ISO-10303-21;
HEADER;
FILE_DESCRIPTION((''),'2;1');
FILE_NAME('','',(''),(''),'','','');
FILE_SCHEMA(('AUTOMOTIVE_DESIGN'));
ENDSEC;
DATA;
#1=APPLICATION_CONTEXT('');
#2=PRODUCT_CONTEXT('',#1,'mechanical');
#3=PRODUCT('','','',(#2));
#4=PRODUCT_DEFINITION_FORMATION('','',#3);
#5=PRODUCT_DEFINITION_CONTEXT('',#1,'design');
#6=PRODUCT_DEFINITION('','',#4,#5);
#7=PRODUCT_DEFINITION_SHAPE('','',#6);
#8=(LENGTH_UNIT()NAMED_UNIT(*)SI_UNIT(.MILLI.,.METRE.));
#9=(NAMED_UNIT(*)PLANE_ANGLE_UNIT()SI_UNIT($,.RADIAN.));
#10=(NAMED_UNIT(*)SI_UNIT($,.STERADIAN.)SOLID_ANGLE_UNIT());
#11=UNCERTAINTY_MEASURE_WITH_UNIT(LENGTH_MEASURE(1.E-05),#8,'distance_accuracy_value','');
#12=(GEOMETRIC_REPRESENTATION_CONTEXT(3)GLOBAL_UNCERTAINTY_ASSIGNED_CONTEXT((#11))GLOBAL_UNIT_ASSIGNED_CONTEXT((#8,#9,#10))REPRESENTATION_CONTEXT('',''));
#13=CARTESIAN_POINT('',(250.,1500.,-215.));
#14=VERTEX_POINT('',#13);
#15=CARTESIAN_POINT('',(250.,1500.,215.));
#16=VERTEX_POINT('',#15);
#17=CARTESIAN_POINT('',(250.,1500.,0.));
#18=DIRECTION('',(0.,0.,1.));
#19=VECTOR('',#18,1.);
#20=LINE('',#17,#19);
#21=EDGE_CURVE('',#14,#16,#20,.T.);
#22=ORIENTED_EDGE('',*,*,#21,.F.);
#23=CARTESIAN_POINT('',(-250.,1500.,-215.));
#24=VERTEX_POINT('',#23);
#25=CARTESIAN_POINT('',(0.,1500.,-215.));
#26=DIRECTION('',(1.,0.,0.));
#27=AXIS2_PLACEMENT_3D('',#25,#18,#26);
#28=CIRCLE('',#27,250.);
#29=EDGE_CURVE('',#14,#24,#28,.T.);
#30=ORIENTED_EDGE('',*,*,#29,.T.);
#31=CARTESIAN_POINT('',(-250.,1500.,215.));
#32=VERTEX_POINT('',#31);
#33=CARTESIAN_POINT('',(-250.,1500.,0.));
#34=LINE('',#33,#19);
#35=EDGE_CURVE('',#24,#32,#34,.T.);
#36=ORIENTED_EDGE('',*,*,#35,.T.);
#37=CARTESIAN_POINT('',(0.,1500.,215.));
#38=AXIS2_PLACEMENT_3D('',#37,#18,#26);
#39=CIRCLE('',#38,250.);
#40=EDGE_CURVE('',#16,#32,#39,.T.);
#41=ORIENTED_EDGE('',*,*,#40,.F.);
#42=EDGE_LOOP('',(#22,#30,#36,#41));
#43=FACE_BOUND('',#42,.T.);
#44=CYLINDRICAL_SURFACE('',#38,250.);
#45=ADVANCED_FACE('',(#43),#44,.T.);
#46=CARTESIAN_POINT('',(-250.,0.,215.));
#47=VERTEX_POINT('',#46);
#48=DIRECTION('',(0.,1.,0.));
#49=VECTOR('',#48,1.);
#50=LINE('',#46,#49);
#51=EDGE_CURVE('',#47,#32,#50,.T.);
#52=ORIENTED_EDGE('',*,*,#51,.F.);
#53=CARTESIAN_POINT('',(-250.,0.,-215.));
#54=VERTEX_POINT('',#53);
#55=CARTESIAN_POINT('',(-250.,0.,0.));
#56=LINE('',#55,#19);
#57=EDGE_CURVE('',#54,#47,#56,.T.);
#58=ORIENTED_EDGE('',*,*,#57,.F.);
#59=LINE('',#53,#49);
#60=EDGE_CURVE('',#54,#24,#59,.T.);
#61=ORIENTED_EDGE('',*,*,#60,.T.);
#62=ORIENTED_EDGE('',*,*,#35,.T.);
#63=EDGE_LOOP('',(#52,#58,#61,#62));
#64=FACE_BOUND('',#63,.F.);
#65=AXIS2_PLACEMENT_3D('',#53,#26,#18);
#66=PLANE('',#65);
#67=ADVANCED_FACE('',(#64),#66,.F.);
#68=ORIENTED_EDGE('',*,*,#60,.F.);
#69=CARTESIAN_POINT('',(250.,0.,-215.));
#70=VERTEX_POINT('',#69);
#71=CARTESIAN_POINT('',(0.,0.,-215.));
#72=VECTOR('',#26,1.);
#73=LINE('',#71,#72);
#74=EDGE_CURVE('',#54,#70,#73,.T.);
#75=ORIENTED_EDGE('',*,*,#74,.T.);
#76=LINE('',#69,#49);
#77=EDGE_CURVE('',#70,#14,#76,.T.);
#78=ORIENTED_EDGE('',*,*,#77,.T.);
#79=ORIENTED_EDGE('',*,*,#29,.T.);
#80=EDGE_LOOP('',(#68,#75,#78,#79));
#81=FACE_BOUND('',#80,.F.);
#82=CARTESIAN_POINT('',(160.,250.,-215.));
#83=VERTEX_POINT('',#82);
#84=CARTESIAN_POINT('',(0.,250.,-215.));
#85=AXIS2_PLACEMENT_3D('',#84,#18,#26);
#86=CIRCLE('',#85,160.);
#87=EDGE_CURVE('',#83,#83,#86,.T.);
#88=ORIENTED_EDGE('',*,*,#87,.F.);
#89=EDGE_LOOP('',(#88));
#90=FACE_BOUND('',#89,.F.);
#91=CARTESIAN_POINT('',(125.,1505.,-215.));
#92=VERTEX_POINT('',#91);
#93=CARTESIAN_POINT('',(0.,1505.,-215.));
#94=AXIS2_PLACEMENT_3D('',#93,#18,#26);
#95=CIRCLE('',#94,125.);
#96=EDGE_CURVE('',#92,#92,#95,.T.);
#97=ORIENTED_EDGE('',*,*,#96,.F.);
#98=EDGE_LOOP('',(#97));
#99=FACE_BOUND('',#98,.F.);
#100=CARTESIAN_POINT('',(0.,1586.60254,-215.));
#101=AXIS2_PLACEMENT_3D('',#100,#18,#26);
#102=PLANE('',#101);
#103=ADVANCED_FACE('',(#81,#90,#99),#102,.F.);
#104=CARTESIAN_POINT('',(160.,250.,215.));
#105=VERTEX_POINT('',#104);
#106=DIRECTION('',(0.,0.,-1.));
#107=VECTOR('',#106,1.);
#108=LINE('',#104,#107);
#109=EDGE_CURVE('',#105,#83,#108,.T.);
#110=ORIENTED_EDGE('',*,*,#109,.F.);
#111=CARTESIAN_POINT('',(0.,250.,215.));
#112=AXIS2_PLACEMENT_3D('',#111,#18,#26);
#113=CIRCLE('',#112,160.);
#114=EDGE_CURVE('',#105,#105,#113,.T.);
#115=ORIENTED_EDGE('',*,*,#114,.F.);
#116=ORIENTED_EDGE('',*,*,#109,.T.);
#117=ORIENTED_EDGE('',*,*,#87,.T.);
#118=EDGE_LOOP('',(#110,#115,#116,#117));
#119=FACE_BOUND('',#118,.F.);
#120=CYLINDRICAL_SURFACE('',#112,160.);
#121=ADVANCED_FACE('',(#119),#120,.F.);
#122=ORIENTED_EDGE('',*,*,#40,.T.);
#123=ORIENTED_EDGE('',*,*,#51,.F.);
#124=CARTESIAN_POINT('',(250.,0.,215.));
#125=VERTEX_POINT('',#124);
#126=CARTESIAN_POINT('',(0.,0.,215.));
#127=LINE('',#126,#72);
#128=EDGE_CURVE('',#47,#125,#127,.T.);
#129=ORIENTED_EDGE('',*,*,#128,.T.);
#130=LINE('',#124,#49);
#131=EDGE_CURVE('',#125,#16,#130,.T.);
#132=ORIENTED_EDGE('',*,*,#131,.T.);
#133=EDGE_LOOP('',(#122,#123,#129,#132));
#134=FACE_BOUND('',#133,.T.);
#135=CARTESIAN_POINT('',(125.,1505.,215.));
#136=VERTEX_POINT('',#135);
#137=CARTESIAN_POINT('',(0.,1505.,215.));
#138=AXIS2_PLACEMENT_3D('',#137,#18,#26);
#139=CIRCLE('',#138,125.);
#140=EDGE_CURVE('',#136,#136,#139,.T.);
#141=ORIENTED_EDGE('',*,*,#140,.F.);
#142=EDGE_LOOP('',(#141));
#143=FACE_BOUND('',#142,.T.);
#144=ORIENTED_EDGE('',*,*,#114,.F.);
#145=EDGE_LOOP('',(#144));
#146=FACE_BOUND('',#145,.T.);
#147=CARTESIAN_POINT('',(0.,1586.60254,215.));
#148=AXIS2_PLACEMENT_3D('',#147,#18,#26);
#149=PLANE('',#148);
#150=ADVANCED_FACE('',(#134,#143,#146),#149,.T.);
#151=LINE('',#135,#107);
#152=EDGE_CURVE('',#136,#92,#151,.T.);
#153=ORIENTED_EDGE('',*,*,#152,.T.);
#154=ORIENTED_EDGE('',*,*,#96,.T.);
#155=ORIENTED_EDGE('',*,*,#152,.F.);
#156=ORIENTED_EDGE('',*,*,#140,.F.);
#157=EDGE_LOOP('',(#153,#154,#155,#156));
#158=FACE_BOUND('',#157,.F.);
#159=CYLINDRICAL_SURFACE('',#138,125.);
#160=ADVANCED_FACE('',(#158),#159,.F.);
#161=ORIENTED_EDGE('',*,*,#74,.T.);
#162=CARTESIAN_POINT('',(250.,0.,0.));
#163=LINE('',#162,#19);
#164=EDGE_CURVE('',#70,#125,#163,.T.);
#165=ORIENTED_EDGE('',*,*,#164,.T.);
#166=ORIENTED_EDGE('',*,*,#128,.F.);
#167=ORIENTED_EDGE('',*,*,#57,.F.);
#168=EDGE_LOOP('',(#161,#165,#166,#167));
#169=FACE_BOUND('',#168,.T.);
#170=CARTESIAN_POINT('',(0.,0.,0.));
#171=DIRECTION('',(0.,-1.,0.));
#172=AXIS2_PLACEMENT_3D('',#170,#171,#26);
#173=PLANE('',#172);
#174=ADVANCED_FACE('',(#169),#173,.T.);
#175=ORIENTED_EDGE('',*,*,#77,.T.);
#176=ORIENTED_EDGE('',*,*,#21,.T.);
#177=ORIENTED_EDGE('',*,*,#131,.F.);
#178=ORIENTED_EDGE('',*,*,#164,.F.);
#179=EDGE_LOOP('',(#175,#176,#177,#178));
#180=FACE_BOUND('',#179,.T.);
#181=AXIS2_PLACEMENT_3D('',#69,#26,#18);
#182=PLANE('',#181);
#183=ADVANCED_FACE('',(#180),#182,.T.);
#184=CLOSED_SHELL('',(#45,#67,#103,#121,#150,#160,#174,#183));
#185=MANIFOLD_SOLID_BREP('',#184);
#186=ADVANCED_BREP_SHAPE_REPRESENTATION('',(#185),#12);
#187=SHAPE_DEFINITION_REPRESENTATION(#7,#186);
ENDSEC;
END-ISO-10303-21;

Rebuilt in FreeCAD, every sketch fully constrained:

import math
import FreeCAD as App
import Part
import Sketcher

V = App.Vector


def add_polygon(sketch, points):
    """Adds a closed chain of lines whose ends are joined by coincident constraints."""
    first, n = sketch.GeometryCount, len(points)
    for a, b in zip(points, points[1:] + points[:1]):
        sketch.addGeometry(Part.LineSegment(App.Vector(*a, 0), App.Vector(*b, 0)), False)
    for i in range(n):
        sketch.addConstraint(Sketcher.Constraint("Coincident", first + i, 2, first + (i + 1) % n, 1))

doc = App.newDocument("Part")
body = doc.addObject("PartDesign::Body", "Body")

# Sketch on XZ plane
sketch1 = body.newObject("Sketcher::SketchObject", "Sketch")
sketch1.AttachmentSupport = (doc.getObject("XZ_Plane"), [""])
sketch1.MapMode = "FlatFace"
add_polygon(sketch1, [(-250, 215), (-250, -215), (250, -215), (250, 215)])  # lines 0-3
sketch1.addConstraint(Sketcher.Constraint("Vertical", 0))
sketch1.addConstraint(Sketcher.Constraint("Horizontal", 1))
sketch1.addConstraint(Sketcher.Constraint("Vertical", 2))
sketch1.addConstraint(Sketcher.Constraint("Horizontal", 3))
sketch1.addConstraint(Sketcher.Constraint("Symmetric", 0, 2, 2, 2, -1, 1))
sketch1.addConstraint(Sketcher.Constraint("DistanceX", 1, 1, 1, 2, 500.0))
sketch1.addConstraint(Sketcher.Constraint("DistanceY", 0, 2, 0, 1, 430.0))
pad1 = body.newObject("PartDesign::Pad", "Pad")
pad1.Profile = sketch1
pad1.Length = 1500
pad1.Reversed = True

# Sketch on XY plane
sketch2 = body.newObject("Sketcher::SketchObject", "Sketch001")
sketch2.AttachmentSupport = (doc.getObject("XY_Plane"), [""])
sketch2.MapMode = "FlatFace"
sketch2.AttachmentOffset = App.Placement(V(0, 0, 215), App.Rotation())
sketch2.addGeometry(Part.LineSegment(V(-250, 1500, 0), V(250, 1500, 0)), False)
sketch2.addGeometry(Part.ArcOfCircle(Part.Circle(V(0, 1500, 0), V(0, 0, 1), 250), math.radians(0), math.radians(180)), False)
sketch2.addConstraint(Sketcher.Constraint("Coincident", 0, 1, 1, 2))
sketch2.addConstraint(Sketcher.Constraint("Coincident", 1, 1, 0, 2))
sketch2.addConstraint(Sketcher.Constraint("Horizontal", 0))
sketch2.addConstraint(Sketcher.Constraint("PointOnObject", 1, 3, -2))
sketch2.addConstraint(Sketcher.Constraint("Horizontal", 1, 3, 0, 1))
sketch2.addConstraint(Sketcher.Constraint("Radius", 1, 250.0))
sketch2.addConstraint(Sketcher.Constraint("DistanceY", -1, 1, 1, 3, 1500.0))
pad2 = body.newObject("PartDesign::Pad", "Pad001")
pad2.Profile = sketch2
pad2.Length = 430
pad2.Reversed = True

# Sketch on XY plane
sketch3 = body.newObject("Sketcher::SketchObject", "Sketch002")
sketch3.AttachmentSupport = (doc.getObject("XY_Plane"), [""])
sketch3.MapMode = "FlatFace"
sketch3.AttachmentOffset = App.Placement(V(0, 0, 215), App.Rotation())
sketch3.addGeometry(Part.Circle(V(0, 1505, 0), V(0, 0, 1), 125), False)
sketch3.addConstraint(Sketcher.Constraint("PointOnObject", 0, 3, -2))
sketch3.addConstraint(Sketcher.Constraint("Diameter", 0, 250.0))
sketch3.addConstraint(Sketcher.Constraint("DistanceY", -1, 1, 0, 3, 1505.0))
pocket1 = body.newObject("PartDesign::Pocket", "Pocket")
pocket1.Profile = sketch3
pocket1.Length = 500

# Sketch on XY plane
sketch4 = body.newObject("Sketcher::SketchObject", "Sketch003")
sketch4.AttachmentSupport = (doc.getObject("XY_Plane"), [""])
sketch4.MapMode = "FlatFace"
sketch4.AttachmentOffset = App.Placement(V(0, 0, 215), App.Rotation())
sketch4.addGeometry(Part.Circle(V(0, 250, 0), V(0, 0, 1), 160), False)
sketch4.addConstraint(Sketcher.Constraint("PointOnObject", 0, 3, -2))
sketch4.addConstraint(Sketcher.Constraint("Diameter", 0, 320.0))
sketch4.addConstraint(Sketcher.Constraint("DistanceY", -1, 1, 0, 3, 250.0))
pocket2 = body.newObject("PartDesign::Pocket", "Pocket001")
pocket2.Profile = sketch4
pocket2.Length = 500

doc.recompute()
